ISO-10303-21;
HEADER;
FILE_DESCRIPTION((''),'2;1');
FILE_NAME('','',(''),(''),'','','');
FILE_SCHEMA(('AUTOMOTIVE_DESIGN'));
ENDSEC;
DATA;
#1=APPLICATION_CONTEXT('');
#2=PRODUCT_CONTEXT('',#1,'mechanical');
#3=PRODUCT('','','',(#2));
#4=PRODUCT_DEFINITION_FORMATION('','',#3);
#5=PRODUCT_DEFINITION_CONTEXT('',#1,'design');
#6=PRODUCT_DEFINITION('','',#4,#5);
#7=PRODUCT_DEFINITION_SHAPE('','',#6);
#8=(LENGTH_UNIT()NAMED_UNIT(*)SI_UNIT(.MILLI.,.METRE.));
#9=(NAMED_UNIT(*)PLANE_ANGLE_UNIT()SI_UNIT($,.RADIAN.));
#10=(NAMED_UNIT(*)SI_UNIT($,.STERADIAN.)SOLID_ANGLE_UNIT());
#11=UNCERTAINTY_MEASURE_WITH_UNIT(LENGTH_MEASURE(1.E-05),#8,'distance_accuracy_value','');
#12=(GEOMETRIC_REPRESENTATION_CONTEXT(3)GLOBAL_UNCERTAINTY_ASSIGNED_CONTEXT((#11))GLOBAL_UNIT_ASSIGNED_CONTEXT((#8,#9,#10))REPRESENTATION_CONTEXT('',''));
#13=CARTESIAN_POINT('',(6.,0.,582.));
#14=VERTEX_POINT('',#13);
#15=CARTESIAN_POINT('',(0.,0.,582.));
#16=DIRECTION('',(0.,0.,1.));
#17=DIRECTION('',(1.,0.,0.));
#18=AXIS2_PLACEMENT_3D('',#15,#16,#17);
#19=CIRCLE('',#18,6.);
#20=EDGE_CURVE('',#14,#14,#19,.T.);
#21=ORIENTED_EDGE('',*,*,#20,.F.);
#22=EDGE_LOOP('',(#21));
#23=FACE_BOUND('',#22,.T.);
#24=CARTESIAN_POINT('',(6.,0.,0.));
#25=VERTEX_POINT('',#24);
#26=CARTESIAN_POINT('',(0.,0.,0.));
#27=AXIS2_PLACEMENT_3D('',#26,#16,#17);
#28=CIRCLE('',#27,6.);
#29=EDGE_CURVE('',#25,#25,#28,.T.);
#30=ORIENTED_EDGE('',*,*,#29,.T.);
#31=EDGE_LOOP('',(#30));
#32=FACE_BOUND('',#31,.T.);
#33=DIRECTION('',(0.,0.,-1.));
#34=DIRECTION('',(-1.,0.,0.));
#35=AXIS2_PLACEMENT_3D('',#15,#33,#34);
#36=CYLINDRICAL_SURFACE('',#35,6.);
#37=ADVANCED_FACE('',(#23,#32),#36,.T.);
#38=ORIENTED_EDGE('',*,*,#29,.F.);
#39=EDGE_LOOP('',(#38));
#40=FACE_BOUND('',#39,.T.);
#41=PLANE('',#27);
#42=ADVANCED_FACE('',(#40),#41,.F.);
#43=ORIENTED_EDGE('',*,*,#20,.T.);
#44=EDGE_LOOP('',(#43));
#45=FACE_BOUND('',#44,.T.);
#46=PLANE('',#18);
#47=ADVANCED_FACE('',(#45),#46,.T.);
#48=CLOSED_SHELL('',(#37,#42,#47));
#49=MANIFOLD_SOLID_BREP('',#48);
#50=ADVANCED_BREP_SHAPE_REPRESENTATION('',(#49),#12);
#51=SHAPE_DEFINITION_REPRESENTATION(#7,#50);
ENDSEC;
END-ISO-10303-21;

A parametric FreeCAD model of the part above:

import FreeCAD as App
import Part
import Sketcher
from FreeCAD import Vector
Q = App.Units.Quantity

doc = App.newDocument("Part")
body = doc.addObject("PartDesign::Body", "Body")

# Sketch on XY plane
sketch1 = body.newObject("Sketcher::SketchObject", "Sketch")
sketch1.AttachmentSupport = (doc.getObject("XY_Plane"), [""])
sketch1.MapMode = "FlatFace"
sketch1.addGeometry(Part.Circle(Vector(0, 0, 0), Vector(0, 0, 1), 6), False)
sketch1.addConstraint([
    Sketcher.Constraint("Coincident", 0, 3, -1, 1),
    Sketcher.Constraint("Diameter", 0, Q("12 mm")),
])
pad1 = body.newObject("PartDesign::Pad", "Pad")
pad1.Profile = sketch1
pad1.Length = 582

doc.recompute()
